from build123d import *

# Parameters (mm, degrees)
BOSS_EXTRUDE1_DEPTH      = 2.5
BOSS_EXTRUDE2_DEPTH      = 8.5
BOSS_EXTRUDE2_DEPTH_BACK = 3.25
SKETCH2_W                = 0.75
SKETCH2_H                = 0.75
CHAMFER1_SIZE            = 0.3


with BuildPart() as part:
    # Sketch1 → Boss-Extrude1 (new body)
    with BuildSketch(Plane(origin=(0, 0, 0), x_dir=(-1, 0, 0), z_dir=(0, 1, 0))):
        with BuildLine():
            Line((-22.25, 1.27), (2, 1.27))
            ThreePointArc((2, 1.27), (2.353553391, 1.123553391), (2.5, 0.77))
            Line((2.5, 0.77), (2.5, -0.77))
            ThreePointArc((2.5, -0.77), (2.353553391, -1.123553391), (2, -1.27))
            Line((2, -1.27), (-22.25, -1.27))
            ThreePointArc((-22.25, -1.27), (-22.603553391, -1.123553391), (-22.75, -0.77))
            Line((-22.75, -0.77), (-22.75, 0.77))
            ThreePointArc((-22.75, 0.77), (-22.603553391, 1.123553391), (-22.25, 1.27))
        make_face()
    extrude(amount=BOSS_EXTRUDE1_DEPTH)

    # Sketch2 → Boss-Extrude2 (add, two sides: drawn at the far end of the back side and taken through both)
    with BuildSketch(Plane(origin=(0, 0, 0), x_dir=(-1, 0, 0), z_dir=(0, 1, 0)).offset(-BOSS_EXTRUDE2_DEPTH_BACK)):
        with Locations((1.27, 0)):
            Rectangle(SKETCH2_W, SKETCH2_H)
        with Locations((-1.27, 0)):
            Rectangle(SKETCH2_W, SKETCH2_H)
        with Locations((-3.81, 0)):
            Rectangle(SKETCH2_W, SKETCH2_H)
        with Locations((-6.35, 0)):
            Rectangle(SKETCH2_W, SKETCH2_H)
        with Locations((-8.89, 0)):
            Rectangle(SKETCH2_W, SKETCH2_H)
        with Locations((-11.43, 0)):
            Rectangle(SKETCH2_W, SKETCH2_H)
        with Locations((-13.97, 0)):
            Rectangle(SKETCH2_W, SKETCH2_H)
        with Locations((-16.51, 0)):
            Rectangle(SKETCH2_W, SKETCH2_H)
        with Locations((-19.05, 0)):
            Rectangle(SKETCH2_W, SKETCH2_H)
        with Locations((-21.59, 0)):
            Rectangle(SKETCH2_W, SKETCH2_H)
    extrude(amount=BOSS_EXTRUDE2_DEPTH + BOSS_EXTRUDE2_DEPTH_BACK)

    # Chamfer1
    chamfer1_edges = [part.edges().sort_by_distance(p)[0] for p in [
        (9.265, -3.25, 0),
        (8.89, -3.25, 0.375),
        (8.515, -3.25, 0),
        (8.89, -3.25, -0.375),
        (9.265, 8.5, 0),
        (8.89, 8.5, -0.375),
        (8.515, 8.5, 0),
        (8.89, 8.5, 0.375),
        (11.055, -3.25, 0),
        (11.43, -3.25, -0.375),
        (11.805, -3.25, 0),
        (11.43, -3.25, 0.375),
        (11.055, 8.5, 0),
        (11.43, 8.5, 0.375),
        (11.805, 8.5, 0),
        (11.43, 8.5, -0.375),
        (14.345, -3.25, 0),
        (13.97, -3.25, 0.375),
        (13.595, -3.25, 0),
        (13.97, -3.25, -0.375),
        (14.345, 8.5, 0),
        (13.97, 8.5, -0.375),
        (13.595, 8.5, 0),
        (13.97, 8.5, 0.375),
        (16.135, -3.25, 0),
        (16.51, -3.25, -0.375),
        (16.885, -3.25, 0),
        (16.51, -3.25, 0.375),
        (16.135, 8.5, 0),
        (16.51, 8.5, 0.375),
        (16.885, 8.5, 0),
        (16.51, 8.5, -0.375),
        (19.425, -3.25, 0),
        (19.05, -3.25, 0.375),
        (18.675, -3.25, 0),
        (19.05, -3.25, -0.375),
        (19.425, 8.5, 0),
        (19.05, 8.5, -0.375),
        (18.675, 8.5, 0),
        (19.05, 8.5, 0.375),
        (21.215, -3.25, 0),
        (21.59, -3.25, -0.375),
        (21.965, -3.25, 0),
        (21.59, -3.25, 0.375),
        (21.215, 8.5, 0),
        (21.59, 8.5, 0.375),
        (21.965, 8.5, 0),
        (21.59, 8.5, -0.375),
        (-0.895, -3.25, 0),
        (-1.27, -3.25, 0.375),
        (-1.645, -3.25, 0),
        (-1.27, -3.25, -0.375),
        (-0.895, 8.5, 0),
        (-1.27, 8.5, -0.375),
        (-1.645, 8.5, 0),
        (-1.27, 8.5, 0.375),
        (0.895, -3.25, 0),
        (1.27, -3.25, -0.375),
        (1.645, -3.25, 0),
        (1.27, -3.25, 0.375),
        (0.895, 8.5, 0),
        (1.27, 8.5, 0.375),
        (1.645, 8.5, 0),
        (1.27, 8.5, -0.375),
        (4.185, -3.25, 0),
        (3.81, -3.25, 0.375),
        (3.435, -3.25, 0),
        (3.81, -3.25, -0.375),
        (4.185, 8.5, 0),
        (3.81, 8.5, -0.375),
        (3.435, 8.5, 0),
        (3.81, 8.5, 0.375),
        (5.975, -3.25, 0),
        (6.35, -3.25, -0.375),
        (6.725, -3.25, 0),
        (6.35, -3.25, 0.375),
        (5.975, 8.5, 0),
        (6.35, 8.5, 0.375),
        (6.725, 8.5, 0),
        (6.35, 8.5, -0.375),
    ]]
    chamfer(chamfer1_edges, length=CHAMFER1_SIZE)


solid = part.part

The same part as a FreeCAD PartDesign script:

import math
import FreeCAD as App
import Part
import Sketcher

V = App.Vector
Q = App.Units.Quantity


def edges_at(feature, points):
    """Names of the edges that pass closest to the given points."""
    edges = feature.Shape.Edges
    near = lambda p: min(range(len(edges)), key=lambda i: edges[i].distToShape(Part.Vertex(*p))[0])
    return sorted({f"Edge{near(p) + 1}" for p in points})


def add_polygon(sketch, points):
    """Adds a closed chain of lines whose ends are joined by coincident constraints."""
    first, n = sketch.GeometryCount, len(points)
    for a, b in zip(points, points[1:] + points[:1]):
        sketch.addGeometry(Part.LineSegment(App.Vector(*a, 0), App.Vector(*b, 0)), False)
    for i in range(n):
        sketch.addConstraint(Sketcher.Constraint("Coincident", first + i, 2, first + (i + 1) % n, 1))

doc = App.newDocument("Part")
body = doc.addObject("PartDesign::Body", "Body")

# Sketch on XZ plane
sketch1 = body.newObject("Sketcher::SketchObject", "Sketch")
sketch1.AttachmentSupport = (doc.getObject("XZ_Plane"), [""])
sketch1.MapMode = "FlatFace"
sketch1.addGeometry(Part.LineSegment(V(-2, 1.27, 0), V(22.25, 1.27, 0)), False)
sketch1.addGeometry(Part.ArcOfCircle(Part.Circle(V(22.25, 0.77, 0), V(0, 0, 1), 0.5), math.radians(0), math.radians(90)), False)
sketch1.addGeometry(Part.LineSegment(V(22.75, 0.77, 0), V(22.75, -0.77, 0)), False)
sketch1.addGeometry(Part.ArcOfCircle(Part.Circle(V(22.25, -0.77, 0), V(0, 0, 1), 0.5), math.radians(-90), math.radians(0)), False)
sketch1.addGeometry(Part.LineSegment(V(22.25, -1.27, 0), V(-2, -1.27, 0)), False)
sketch1.addGeometry(Part.ArcOfCircle(Part.Circle(V(-2, -0.77, 0), V(0, 0, 1), 0.5), math.radians(180), math.radians(270)), False)
sketch1.addGeometry(Part.LineSegment(V(-2.5, -0.77, 0), V(-2.5, 0.77, 0)), False)
sketch1.addGeometry(Part.ArcOfCircle(Part.Circle(V(-2, 0.77, 0), V(0, 0, 1), 0.5), math.radians(90), math.radians(180)), False)
sketch1.addConstraint(Sketcher.Constraint("Tangent", 0, 2, 1, 2))
sketch1.addConstraint(Sketcher.Constraint("Tangent", 1, 1, 2, 1))
sketch1.addConstraint(Sketcher.Constraint("Tangent", 2, 2, 3, 2))
sketch1.addConstraint(Sketcher.Constraint("Tangent", 3, 1, 4, 1))
sketch1.addConstraint(Sketcher.Constraint("Tangent", 4, 2, 5, 2))
sketch1.addConstraint(Sketcher.Constraint("Tangent", 5, 1, 6, 1))
sketch1.addConstraint(Sketcher.Constraint("Tangent", 6, 2, 7, 2))
sketch1.addConstraint(Sketcher.Constraint("Tangent", 7, 1, 0, 1))
sketch1.addConstraint(Sketcher.Constraint("Horizontal", 0))
sketch1.addConstraint(Sketcher.Constraint("Vertical", 2))
sketch1.addConstraint(Sketcher.Constraint("Horizontal", 4))
sketch1.addConstraint(Sketcher.Constraint("Vertical", 6))
sketch1.addConstraint(Sketcher.Constraint("Equal", 1, 3))
sketch1.addConstraint(Sketcher.Constraint("Equal", 3, 5))
sketch1.addConstraint(Sketcher.Constraint("Equal", 5, 7))
sketch1.addConstraint(Sketcher.Constraint("Radius", 1, Q("0.5 mm")))
sketch1.addConstraint(Sketcher.Constraint("DistanceX", 5, 3, -1, 1, Q("2 mm")))
sketch1.addConstraint(Sketcher.Constraint("DistanceX", 0, 1, 0, 2, Q("24.25 mm")))
sketch1.addConstraint(Sketcher.Constraint("DistanceY", 2, 2, 2, 1, Q("1.54 mm")))
sketch1.addConstraint(Sketcher.Constraint("DistanceY", -1, 1, 1, 3, Q("0.77 mm")))
pad1 = body.newObject("PartDesign::Pad", "Pad")
pad1.Profile = sketch1
pad1.Length = 2.5
pad1.Reversed = True

# Sketch on XZ plane
sketch2 = body.newObject("Sketcher::SketchObject", "Sketch001")
sketch2.AttachmentSupport = (doc.getObject("XZ_Plane"), [""])
sketch2.MapMode = "FlatFace"
add_polygon(sketch2, [(-0.895, 0.375), (-0.895, -0.375), (-1.645, -0.375), (-1.645, 0.375)])  # lines 0-3
add_polygon(sketch2, [(1.645, 0.375), (1.645, -0.375), (0.895, -0.375), (0.895, 0.375)])  # lines 4-7
add_polygon(sketch2, [(4.185, 0.375), (4.185, -0.375), (3.435, -0.375), (3.435, 0.375)])  # lines 8-11
add_polygon(sketch2, [(6.725, 0.375), (6.725, -0.375), (5.975, -0.375), (5.975, 0.375)])  # lines 12-15
add_polygon(sketch2, [(9.265, 0.375), (9.265, -0.375), (8.515, -0.375), (8.515, 0.375)])  # lines 16-19
add_polygon(sketch2, [(11.805, 0.375), (11.805, -0.375), (11.055, -0.375), (11.055, 0.375)])  # lines 20-23
add_polygon(sketch2, [(14.345, 0.375), (14.345, -0.375), (13.595, -0.375), (13.595, 0.375)])  # lines 24-27
add_polygon(sketch2, [(16.885, 0.375), (16.885, -0.375), (16.135, -0.375), (16.135, 0.375)])  # lines 28-31
add_polygon(sketch2, [(19.425, 0.375), (19.425, -0.375), (18.675, -0.375), (18.675, 0.375)])  # lines 32-35
add_polygon(sketch2, [(21.965, 0.375), (21.965, -0.375), (21.215, -0.375), (21.215, 0.375)])  # lines 36-39
sketch2.addConstraint(Sketcher.Constraint("Vertical", 0))
sketch2.addConstraint(Sketcher.Constraint("Horizontal", 1))
sketch2.addConstraint(Sketcher.Constraint("Vertical", 2))
sketch2.addConstraint(Sketcher.Constraint("Horizontal", 3))
sketch2.addConstraint(Sketcher.Constraint("Vertical", 4))
sketch2.addConstraint(Sketcher.Constraint("Horizontal", 5))
sketch2.addConstraint(Sketcher.Constraint("Vertical", 6))
sketch2.addConstraint(Sketcher.Constraint("Horizontal", 7))
sketch2.addConstraint(Sketcher.Constraint("Vertical", 8))
sketch2.addConstraint(Sketcher.Constraint("Horizontal", 9))
sketch2.addConstraint(Sketcher.Constraint("Vertical", 10))
sketch2.addConstraint(Sketcher.Constraint("Horizontal", 11))
sketch2.addConstraint(Sketcher.Constraint("Vertical", 12))
sketch2.addConstraint(Sketcher.Constraint("Horizontal", 13))
sketch2.addConstraint(Sketcher.Constraint("Vertical", 14))
sketch2.addConstraint(Sketcher.Constraint("Horizontal", 15))
sketch2.addConstraint(Sketcher.Constraint("Vertical", 16))
sketch2.addConstraint(Sketcher.Constraint("Horizontal", 17))
sketch2.addConstraint(Sketcher.Constraint("Vertical", 18))
sketch2.addConstraint(Sketcher.Constraint("Horizontal", 19))
sketch2.addConstraint(Sketcher.Constraint("Vertical", 20))
sketch2.addConstraint(Sketcher.Constraint("Horizontal", 21))
sketch2.addConstraint(Sketcher.Constraint("Vertical", 22))
sketch2.addConstraint(Sketcher.Constraint("Horizontal", 23))
sketch2.addConstraint(Sketcher.Constraint("Vertical", 24))
sketch2.addConstraint(Sketcher.Constraint("Horizontal", 25))
sketch2.addConstraint(Sketcher.Constraint("Vertical", 26))
sketch2.addConstraint(Sketcher.Constraint("Horizontal", 27))
sketch2.addConstraint(Sketcher.Constraint("Vertical", 28))
sketch2.addConstraint(Sketcher.Constraint("Horizontal", 29))
sketch2.addConstraint(Sketcher.Constraint("Vertical", 30))
sketch2.addConstraint(Sketcher.Constraint("Horizontal", 31))
sketch2.addConstraint(Sketcher.Constraint("Vertical", 32))
sketch2.addConstraint(Sketcher.Constraint("Horizontal", 33))
sketch2.addConstraint(Sketcher.Constraint("Vertical", 34))
sketch2.addConstraint(Sketcher.Constraint("Horizontal", 35))
sketch2.addConstraint(Sketcher.Constraint("Vertical", 36))
sketch2.addConstraint(Sketcher.Constraint("Horizontal", 37))
sketch2.addConstraint(Sketcher.Constraint("Vertical", 38))
sketch2.addConstraint(Sketcher.Constraint("Horizontal", 39))
sketch2.addConstraint(Sketcher.Constraint("Symmetric", 2, 2, 4, 2, -1, 1))
sketch2.addConstraint(Sketcher.Constraint("Symmetric", 0, 2, 6, 2, -1, 1))
sketch2.addConstraint(Sketcher.Constraint("Horizontal", 1, 2, 4, 2))
sketch2.addConstraint(Sketcher.Constraint("Horizontal", 5, 2, 8, 2))
sketch2.addConstraint(Sketcher.Constraint("Horizontal", 7, 2, 10, 2))
sketch2.addConstraint(Sketcher.Constraint("Horizontal", 9, 2, 12, 2))
sketch2.addConstraint(Sketcher.Constraint("Horizontal", 11, 2, 14, 2))
sketch2.addConstraint(Sketcher.Constraint("Horizontal", 13, 2, 16, 2))
sketch2.addConstraint(Sketcher.Constraint("Horizontal", 15, 2, 18, 2))
sketch2.addConstraint(Sketcher.Constraint("Horizontal", 17, 2, 20, 2))
sketch2.addConstraint(Sketcher.Constraint("Horizontal", 19, 2, 22, 2))
sketch2.addConstraint(Sketcher.Constraint("Horizontal", 21, 2, 24, 2))
sketch2.addConstraint(Sketcher.Constraint("Horizontal", 23, 2, 26, 2))
sketch2.addConstraint(Sketcher.Constraint("Horizontal", 25, 2, 28, 2))
sketch2.addConstraint(Sketcher.Constraint("Horizontal", 27, 2, 30, 2))
sketch2.addConstraint(Sketcher.Constraint("Horizontal", 29, 2, 32, 2))
sketch2.addConstraint(Sketcher.Constraint("Horizontal", 31, 2, 34, 2))
sketch2.addConstraint(Sketcher.Constraint("Horizontal", 33, 2, 36, 2))
sketch2.addConstraint(Sketcher.Constraint("Horizontal", 35, 2, 38, 2))
sketch2.addConstraint(Sketcher.Constraint("Equal", 7, 9))
sketch2.addConstraint(Sketcher.Constraint("Equal", 11, 13))
sketch2.addConstraint(Sketcher.Constraint("Equal", 15, 17))
sketch2.addConstraint(Sketcher.Constraint("Equal", 19, 21))
sketch2.addConstraint(Sketcher.Constraint("Equal", 23, 25))
sketch2.addConstraint(Sketcher.Constraint("Equal", 27, 29))
sketch2.addConstraint(Sketcher.Constraint("Equal", 31, 33))
sketch2.addConstraint(Sketcher.Constraint("Equal", 35, 37))
sketch2.addConstraint(Sketcher.Constraint("Equal", 39, 0))
sketch2.addConstraint(Sketcher.Constraint("DistanceX", 1, 2, 1, 1, Q("0.75 mm")))
sketch2.addConstraint(Sketcher.Constraint("DistanceX", 0, 2, 4, 2, Q("2.54 mm")))
sketch2.addConstraint(Sketcher.Constraint("DistanceX", 4, 2, 8, 2, Q("2.54 mm")))
sketch2.addConstraint(Sketcher.Constraint("DistanceX", 8, 2, 12, 2, Q("2.54 mm")))
sketch2.addConstraint(Sketcher.Constraint("DistanceX", 12, 2, 16, 2, Q("2.54 mm")))
sketch2.addConstraint(Sketcher.Constraint("DistanceX", 16, 2, 20, 2, Q("2.54 mm")))
sketch2.addConstraint(Sketcher.Constraint("DistanceX", 20, 2, 24, 2, Q("2.54 mm")))
sketch2.addConstraint(Sketcher.Constraint("DistanceX", 24, 2, 28, 2, Q("2.54 mm")))
sketch2.addConstraint(Sketcher.Constraint("DistanceX", 28, 2, 32, 2, Q("2.54 mm")))
sketch2.addConstraint(Sketcher.Constraint("DistanceX", 32, 2, 36, 2, Q("2.54 mm")))
pad2 = body.newObject("PartDesign::Pad", "Pad001")
pad2.Profile = sketch2
pad2.Type = "TwoLengths"
pad2.Length = 8.5
pad2.Length2 = 3.25
pad2.Reversed = True
doc.recompute()

chamfer = body.newObject("PartDesign::Chamfer", "Chamfer")
chamfer.Base = (pad2, edges_at(pad2, [
    (9.265, -3.25, 0),
    (8.89, -3.25, 0.375),
    (8.515, -3.25, 0),
    (8.89, -3.25, -0.375),
    (9.265, 8.5, 0),
    (8.89, 8.5, -0.375),
    (8.515, 8.5, 0),
    (8.89, 8.5, 0.375),
    (11.055, -3.25, 0),
    (11.43, -3.25, -0.375),
    (11.805, -3.25, 0),
    (11.43, -3.25, 0.375),
    (11.055, 8.5, 0),
    (11.43, 8.5, 0.375),
    (11.805, 8.5, 0),
    (11.43, 8.5, -0.375),
    (14.345, -3.25, 0),
    (13.97, -3.25, 0.375),
    (13.595, -3.25, 0),
    (13.97, -3.25, -0.375),
    (14.345, 8.5, 0),
    (13.97, 8.5, -0.375),
    (13.595, 8.5, 0),
    (13.97, 8.5, 0.375),
    (16.135, -3.25, 0),
    (16.51, -3.25, -0.375),
    (16.885, -3.25, 0),
    (16.51, -3.25, 0.375),
    (16.135, 8.5, 0),
    (16.51, 8.5, 0.375),
    (16.885, 8.5, 0),
    (16.51, 8.5, -0.375),
    (19.425, -3.25, 0),
    (19.05, -3.25, 0.375),
    (18.675, -3.25, 0),
    (19.05, -3.25, -0.375),
    (19.425, 8.5, 0),
    (19.05, 8.5, -0.375),
    (18.675, 8.5, 0),
    (19.05, 8.5, 0.375),
    (21.215, -3.25, 0),
    (21.59, -3.25, -0.375),
    (21.965, -3.25, 0),
    (21.59, -3.25, 0.375),
    (21.215, 8.5, 0),
    (21.59, 8.5, 0.375),
    (21.965, 8.5, 0),
    (21.59, 8.5, -0.375),
    (-0.895, -3.25, 0),
    (-1.27, -3.25, 0.375),
    (-1.645, -3.25, 0),
    (-1.27, -3.25, -0.375),
    (-0.895, 8.5, 0),
    (-1.27, 8.5, -0.375),
    (-1.645, 8.5, 0),
    (-1.27, 8.5, 0.375),
    (0.895, -3.25, 0),
    (1.27, -3.25, -0.375),
    (1.645, -3.25, 0),
    (1.27, -3.25, 0.375),
    (0.895, 8.5, 0),
    (1.27, 8.5, 0.375),
    (1.645, 8.5, 0),
    (1.27, 8.5, -0.375),
    (4.185, -3.25, 0),
    (3.81, -3.25, 0.375),
    (3.435, -3.25, 0),
    (3.81, -3.25, -0.375),
    (4.185, 8.5, 0),
    (3.81, 8.5, -0.375),
    (3.435, 8.5, 0),
    (3.81, 8.5, 0.375),
    (5.975, -3.25, 0),
    (6.35, -3.25, -0.375),
    (6.725, -3.25, 0),
    (6.35, -3.25, 0.375),
    (5.975, 8.5, 0),
    (6.35, 8.5, 0.375),
    (6.725, 8.5, 0),
    (6.35, 8.5, -0.375),
]))
chamfer.Size = 0.3

doc.recompute()
